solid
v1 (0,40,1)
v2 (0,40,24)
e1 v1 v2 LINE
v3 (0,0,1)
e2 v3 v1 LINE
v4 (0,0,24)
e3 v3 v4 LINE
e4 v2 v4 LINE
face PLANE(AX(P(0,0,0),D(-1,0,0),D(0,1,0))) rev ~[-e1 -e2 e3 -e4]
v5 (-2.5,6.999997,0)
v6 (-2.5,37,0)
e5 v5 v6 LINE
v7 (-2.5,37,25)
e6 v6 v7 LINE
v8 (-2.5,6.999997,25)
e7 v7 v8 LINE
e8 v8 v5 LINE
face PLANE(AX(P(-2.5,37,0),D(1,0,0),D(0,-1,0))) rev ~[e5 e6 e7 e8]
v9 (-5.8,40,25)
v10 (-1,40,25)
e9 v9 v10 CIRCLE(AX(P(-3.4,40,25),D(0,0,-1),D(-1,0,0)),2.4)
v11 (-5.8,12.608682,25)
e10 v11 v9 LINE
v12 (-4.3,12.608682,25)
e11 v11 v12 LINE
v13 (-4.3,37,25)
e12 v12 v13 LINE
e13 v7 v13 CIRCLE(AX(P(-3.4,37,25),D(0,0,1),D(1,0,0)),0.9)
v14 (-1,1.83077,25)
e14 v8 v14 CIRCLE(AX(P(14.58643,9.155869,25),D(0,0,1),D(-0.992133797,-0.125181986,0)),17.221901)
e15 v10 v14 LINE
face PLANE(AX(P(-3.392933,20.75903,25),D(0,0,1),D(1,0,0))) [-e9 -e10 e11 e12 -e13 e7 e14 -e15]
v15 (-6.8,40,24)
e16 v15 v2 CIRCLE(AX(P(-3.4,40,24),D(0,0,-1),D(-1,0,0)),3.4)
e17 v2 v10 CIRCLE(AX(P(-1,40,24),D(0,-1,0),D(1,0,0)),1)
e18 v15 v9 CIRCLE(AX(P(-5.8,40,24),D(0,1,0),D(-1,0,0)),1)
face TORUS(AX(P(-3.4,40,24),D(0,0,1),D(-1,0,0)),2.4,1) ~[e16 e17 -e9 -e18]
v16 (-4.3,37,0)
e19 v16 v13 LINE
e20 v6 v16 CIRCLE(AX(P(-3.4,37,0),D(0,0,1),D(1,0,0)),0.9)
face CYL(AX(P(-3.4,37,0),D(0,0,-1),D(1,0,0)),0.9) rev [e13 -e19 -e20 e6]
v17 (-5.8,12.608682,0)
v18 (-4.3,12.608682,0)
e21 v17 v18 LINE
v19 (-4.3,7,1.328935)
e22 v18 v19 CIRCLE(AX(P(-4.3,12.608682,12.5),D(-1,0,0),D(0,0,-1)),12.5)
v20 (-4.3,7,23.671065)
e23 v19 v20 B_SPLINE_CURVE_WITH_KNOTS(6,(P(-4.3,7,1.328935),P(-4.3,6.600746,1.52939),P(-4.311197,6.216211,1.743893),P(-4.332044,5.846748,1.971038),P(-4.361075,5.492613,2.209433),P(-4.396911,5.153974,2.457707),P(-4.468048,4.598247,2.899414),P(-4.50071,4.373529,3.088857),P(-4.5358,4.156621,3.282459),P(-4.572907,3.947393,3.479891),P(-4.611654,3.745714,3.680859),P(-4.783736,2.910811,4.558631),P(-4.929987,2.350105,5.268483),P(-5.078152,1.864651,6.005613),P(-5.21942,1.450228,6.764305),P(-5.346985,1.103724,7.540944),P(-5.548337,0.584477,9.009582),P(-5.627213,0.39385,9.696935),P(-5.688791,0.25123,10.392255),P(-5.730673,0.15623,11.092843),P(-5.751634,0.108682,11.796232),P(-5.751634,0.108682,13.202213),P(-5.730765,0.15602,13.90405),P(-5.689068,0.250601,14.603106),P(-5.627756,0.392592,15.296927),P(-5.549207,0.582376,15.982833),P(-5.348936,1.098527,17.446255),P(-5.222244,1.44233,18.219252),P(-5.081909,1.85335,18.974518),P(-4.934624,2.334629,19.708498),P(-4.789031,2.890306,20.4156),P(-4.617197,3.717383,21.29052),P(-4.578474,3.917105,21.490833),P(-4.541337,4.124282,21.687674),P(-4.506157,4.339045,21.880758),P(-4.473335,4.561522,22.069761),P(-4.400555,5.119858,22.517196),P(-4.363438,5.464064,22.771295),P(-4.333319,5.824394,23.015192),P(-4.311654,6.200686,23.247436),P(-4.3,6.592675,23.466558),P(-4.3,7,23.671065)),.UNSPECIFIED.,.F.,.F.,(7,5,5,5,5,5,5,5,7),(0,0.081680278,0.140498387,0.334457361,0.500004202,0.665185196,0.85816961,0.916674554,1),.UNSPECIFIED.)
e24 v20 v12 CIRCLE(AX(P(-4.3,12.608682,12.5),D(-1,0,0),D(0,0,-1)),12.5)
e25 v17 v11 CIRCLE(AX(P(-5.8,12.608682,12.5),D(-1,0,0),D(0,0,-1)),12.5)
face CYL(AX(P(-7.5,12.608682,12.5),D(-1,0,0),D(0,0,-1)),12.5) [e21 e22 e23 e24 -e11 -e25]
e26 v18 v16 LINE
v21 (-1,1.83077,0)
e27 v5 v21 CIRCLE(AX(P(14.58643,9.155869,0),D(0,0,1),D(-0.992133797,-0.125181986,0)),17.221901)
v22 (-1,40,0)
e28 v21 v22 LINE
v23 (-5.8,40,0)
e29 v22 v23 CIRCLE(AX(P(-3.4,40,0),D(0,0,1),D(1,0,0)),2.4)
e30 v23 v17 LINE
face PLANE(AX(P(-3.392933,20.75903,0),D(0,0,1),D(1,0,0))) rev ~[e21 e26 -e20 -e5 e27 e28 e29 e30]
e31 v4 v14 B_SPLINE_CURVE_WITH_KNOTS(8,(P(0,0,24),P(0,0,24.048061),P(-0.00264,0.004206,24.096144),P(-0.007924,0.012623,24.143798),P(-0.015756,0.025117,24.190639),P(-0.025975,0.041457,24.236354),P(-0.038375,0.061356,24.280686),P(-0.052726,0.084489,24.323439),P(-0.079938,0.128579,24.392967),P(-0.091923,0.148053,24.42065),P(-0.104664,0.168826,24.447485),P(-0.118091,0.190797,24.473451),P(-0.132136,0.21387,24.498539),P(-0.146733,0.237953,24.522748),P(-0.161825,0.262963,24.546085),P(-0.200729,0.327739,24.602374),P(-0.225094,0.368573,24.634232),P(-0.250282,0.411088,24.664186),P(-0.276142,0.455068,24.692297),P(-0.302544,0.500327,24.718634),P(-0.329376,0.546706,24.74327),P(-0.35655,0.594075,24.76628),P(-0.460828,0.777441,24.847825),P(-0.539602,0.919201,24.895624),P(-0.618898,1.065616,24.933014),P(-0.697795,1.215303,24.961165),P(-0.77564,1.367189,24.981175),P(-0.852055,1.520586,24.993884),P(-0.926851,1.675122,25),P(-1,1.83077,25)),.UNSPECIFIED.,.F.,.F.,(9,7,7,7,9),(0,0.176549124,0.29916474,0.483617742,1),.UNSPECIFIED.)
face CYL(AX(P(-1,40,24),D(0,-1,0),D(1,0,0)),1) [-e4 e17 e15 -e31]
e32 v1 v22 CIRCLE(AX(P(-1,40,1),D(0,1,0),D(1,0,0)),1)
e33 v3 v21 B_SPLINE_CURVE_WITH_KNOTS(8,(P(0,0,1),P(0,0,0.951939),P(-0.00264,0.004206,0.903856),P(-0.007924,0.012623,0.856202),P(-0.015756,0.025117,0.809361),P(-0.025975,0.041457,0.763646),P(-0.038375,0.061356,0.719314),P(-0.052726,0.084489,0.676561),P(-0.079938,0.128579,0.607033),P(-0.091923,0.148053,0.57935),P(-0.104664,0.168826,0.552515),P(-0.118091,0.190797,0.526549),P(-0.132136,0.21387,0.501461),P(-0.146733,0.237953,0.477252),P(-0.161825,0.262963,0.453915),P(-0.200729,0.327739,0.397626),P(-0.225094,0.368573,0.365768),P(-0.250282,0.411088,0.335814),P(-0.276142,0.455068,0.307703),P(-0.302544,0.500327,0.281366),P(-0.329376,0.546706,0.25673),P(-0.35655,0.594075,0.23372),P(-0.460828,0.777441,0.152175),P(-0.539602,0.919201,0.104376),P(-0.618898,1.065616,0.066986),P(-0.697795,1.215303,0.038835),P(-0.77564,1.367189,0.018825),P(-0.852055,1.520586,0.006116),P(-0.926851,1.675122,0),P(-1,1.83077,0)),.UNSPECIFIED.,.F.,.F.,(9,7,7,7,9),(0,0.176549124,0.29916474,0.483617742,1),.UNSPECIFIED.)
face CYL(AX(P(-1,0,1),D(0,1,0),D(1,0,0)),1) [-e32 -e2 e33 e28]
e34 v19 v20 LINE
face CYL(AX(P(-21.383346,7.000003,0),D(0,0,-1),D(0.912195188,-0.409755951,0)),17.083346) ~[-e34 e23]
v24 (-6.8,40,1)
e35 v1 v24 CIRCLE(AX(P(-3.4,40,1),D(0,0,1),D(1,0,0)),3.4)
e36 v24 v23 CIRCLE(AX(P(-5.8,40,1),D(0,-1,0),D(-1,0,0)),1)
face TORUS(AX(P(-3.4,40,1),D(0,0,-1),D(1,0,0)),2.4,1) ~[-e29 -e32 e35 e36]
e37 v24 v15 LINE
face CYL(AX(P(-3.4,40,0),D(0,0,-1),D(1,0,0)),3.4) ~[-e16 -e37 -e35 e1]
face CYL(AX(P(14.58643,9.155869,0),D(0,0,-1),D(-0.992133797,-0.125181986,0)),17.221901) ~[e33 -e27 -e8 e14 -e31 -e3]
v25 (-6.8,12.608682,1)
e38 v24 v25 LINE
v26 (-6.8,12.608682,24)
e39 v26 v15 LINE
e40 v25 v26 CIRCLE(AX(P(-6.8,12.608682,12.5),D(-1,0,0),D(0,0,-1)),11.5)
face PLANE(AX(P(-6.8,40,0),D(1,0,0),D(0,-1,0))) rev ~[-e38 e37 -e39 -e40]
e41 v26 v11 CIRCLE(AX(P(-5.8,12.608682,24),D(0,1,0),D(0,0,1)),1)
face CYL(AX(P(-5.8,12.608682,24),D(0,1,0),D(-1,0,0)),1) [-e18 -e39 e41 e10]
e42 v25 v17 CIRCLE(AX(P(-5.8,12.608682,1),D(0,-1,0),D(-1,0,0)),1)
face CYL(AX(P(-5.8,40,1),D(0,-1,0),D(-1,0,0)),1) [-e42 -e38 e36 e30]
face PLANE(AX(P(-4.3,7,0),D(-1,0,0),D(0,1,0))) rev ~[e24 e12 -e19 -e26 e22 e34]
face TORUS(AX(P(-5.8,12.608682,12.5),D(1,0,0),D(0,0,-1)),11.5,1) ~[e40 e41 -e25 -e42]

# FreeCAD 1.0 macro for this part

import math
import FreeCAD as App
import Part
import Sketcher

V = App.Vector
Q = App.Units.Quantity


def edges_at(feature, points):
    """Names of the edges that pass closest to the given points."""
    edges = feature.Shape.Edges
    near = lambda p: min(range(len(edges)), key=lambda i: edges[i].distToShape(Part.Vertex(*p))[0])
    return sorted({f"Edge{near(p) + 1}" for p in points})

doc = App.newDocument("Part")
body = doc.addObject("PartDesign::Body", "Body")

# Sketch on XY plane
sketch1 = body.newObject("Sketcher::SketchObject", "Sketch")
sketch1.AttachmentSupport = (doc.getObject("XY_Plane"), [""])
sketch1.MapMode = "FlatFace"
sketch1.addGeometry([
    Part.LineSegment(V(-6.8, 40, 0), V(-6.8, 0, 0)),  # 0
    Part.LineSegment(V(-6.8, 0, 0), V(-5.8, 0, 0)),  # 1
    Part.ArcOfCircle(Part.Circle(V(-21.4, 7, 0), V(0, 0, 1), 17.1), math.radians(-24), math.radians(0)),  # 2
    Part.LineSegment(V(-4.3, 7, 0), V(-4.3, 37, 0)),  # 3
    Part.ArcOfCircle(Part.Circle(V(-3.4, 37, 0), V(0, 0, 1), 0.9), math.radians(0), math.radians(180)),  # 4
    Part.LineSegment(V(-2.5, 37, 0), V(-2.5, 7, 0)),  # 5
    Part.ArcOfCircle(Part.Circle(V(14.6, 9.2, 0), V(0, 0, 1), 17.2), math.radians(-173), math.radians(-148)),  # 6
    Part.LineSegment(V(0, 0, 0), V(0, 40, 0)),  # 7
    Part.ArcOfCircle(Part.Circle(V(-3.4, 40, 0), V(0, 0, 1), 3.4), math.radians(0), math.radians(180)),  # 8
], False)
sketch1.addConstraint([
    Sketcher.Constraint("Coincident", 0, 2, 1, 1),
    Sketcher.Constraint("Coincident", 1, 2, 2, 1),
    Sketcher.Constraint("Tangent", 2, 2, 3, 1),
    Sketcher.Constraint("Tangent", 3, 2, 4, 2),
    Sketcher.Constraint("Tangent", 4, 1, 5, 1),
    Sketcher.Constraint("Coincident", 5, 2, 6, 1),
    Sketcher.Constraint("Coincident", 6, 2, 7, 1),
    Sketcher.Constraint("Tangent", 7, 2, 8, 1),
    Sketcher.Constraint("Tangent", 8, 2, 0, 1),
    Sketcher.Constraint("Vertical", 0),
    Sketcher.Constraint("Horizontal", 1),
    Sketcher.Constraint("Vertical", 3),
    Sketcher.Constraint("Vertical", 5),
    Sketcher.Constraint("Vertical", 7),
    Sketcher.Constraint("Coincident", 6, 2, -1, 1),
    Sketcher.Constraint("PointOnObject", 0, 2, -1),
    Sketcher.Constraint("Vertical", 4, 3, 8, 3),
    Sketcher.Constraint("Radius", 4, Q("0.9 mm")),
    Sketcher.Constraint("Radius", 8, Q("3.4 mm")),
    Sketcher.Constraint("DistanceX", 1, 1, 1, 2, Q("1 mm")),
    Sketcher.Constraint("DistanceY", 0, 2, 0, 1, Q("40 mm")),
    Sketcher.Constraint("DistanceY", 3, 1, 3, 2, Q("30 mm")),
    Sketcher.Constraint("DistanceY", -1, 1, 4, 3, Q("37 mm")),
    Sketcher.Constraint("Radius", 6, Q("17.221901 mm")),
    Sketcher.Constraint("DistanceY", 5, 2, 5, 1, Q("30.000003 mm")),
])
pad1 = body.newObject("PartDesign::Pad", "Pad")
pad1.Profile = sketch1
pad1.Length = 25

# Sketch on YZ plane
sketch2 = body.newObject("Sketcher::SketchObject", "Sketch001")
sketch2.AttachmentSupport = (doc.getObject("YZ_Plane"), [""])
sketch2.MapMode = "FlatFace"
sketch2.AttachmentOffset = App.Placement(V(0, 0, -7.5), App.Rotation())
sketch2.addGeometry([
    Part.ArcOfCircle(Part.Circle(V(13, 12, 0), V(0, 0, 1), 12), math.radians(90), math.radians(270)),
    Part.LineSegment(V(13, 0, 0), V(-7, 0, 0)),
    Part.LineSegment(V(-7, 0, 0), V(-7, 25, 0)),
    Part.LineSegment(V(-7, 25, 0), V(13, 25, 0)),
], False)
sketch2.addConstraint([
    Sketcher.Constraint("Tangent", 0, 2, 1, 1),
    Sketcher.Constraint("Coincident", 1, 2, 2, 1),
    Sketcher.Constraint("Coincident", 2, 2, 3, 1),
    Sketcher.Constraint("Tangent", 3, 2, 0, 1),
    Sketcher.Constraint("Horizontal", 1),
    Sketcher.Constraint("Vertical", 2),
    Sketcher.Constraint("Horizontal", 3),
    Sketcher.Constraint("PointOnObject", 0, 2, -1),
    Sketcher.Constraint("Radius", 0, Q("12.5 mm")),
    Sketcher.Constraint("DistanceX", 1, 2, 1, 1, Q("20 mm")),
    Sketcher.Constraint("DistanceX", -1, 1, 0, 3, Q("12.608682 mm")),
])
pocket1 = body.newObject("PartDesign::Pocket", "Pocket")
pocket1.Profile = sketch2
pocket1.Length = 5
pocket1.Reversed = True
doc.recompute()

fillet = body.newObject("PartDesign::Fillet", "Fillet")
fillet.Base = (pocket1, edges_at(pocket1, [
    (-6.8, 26.304, 0),
    (-6.8, 0.109, 12.5),
    (-6.8, 26.304, 25),
    (-6.8, 40, 12.5),
]))
fillet.Radius = 1

doc.recompute()
